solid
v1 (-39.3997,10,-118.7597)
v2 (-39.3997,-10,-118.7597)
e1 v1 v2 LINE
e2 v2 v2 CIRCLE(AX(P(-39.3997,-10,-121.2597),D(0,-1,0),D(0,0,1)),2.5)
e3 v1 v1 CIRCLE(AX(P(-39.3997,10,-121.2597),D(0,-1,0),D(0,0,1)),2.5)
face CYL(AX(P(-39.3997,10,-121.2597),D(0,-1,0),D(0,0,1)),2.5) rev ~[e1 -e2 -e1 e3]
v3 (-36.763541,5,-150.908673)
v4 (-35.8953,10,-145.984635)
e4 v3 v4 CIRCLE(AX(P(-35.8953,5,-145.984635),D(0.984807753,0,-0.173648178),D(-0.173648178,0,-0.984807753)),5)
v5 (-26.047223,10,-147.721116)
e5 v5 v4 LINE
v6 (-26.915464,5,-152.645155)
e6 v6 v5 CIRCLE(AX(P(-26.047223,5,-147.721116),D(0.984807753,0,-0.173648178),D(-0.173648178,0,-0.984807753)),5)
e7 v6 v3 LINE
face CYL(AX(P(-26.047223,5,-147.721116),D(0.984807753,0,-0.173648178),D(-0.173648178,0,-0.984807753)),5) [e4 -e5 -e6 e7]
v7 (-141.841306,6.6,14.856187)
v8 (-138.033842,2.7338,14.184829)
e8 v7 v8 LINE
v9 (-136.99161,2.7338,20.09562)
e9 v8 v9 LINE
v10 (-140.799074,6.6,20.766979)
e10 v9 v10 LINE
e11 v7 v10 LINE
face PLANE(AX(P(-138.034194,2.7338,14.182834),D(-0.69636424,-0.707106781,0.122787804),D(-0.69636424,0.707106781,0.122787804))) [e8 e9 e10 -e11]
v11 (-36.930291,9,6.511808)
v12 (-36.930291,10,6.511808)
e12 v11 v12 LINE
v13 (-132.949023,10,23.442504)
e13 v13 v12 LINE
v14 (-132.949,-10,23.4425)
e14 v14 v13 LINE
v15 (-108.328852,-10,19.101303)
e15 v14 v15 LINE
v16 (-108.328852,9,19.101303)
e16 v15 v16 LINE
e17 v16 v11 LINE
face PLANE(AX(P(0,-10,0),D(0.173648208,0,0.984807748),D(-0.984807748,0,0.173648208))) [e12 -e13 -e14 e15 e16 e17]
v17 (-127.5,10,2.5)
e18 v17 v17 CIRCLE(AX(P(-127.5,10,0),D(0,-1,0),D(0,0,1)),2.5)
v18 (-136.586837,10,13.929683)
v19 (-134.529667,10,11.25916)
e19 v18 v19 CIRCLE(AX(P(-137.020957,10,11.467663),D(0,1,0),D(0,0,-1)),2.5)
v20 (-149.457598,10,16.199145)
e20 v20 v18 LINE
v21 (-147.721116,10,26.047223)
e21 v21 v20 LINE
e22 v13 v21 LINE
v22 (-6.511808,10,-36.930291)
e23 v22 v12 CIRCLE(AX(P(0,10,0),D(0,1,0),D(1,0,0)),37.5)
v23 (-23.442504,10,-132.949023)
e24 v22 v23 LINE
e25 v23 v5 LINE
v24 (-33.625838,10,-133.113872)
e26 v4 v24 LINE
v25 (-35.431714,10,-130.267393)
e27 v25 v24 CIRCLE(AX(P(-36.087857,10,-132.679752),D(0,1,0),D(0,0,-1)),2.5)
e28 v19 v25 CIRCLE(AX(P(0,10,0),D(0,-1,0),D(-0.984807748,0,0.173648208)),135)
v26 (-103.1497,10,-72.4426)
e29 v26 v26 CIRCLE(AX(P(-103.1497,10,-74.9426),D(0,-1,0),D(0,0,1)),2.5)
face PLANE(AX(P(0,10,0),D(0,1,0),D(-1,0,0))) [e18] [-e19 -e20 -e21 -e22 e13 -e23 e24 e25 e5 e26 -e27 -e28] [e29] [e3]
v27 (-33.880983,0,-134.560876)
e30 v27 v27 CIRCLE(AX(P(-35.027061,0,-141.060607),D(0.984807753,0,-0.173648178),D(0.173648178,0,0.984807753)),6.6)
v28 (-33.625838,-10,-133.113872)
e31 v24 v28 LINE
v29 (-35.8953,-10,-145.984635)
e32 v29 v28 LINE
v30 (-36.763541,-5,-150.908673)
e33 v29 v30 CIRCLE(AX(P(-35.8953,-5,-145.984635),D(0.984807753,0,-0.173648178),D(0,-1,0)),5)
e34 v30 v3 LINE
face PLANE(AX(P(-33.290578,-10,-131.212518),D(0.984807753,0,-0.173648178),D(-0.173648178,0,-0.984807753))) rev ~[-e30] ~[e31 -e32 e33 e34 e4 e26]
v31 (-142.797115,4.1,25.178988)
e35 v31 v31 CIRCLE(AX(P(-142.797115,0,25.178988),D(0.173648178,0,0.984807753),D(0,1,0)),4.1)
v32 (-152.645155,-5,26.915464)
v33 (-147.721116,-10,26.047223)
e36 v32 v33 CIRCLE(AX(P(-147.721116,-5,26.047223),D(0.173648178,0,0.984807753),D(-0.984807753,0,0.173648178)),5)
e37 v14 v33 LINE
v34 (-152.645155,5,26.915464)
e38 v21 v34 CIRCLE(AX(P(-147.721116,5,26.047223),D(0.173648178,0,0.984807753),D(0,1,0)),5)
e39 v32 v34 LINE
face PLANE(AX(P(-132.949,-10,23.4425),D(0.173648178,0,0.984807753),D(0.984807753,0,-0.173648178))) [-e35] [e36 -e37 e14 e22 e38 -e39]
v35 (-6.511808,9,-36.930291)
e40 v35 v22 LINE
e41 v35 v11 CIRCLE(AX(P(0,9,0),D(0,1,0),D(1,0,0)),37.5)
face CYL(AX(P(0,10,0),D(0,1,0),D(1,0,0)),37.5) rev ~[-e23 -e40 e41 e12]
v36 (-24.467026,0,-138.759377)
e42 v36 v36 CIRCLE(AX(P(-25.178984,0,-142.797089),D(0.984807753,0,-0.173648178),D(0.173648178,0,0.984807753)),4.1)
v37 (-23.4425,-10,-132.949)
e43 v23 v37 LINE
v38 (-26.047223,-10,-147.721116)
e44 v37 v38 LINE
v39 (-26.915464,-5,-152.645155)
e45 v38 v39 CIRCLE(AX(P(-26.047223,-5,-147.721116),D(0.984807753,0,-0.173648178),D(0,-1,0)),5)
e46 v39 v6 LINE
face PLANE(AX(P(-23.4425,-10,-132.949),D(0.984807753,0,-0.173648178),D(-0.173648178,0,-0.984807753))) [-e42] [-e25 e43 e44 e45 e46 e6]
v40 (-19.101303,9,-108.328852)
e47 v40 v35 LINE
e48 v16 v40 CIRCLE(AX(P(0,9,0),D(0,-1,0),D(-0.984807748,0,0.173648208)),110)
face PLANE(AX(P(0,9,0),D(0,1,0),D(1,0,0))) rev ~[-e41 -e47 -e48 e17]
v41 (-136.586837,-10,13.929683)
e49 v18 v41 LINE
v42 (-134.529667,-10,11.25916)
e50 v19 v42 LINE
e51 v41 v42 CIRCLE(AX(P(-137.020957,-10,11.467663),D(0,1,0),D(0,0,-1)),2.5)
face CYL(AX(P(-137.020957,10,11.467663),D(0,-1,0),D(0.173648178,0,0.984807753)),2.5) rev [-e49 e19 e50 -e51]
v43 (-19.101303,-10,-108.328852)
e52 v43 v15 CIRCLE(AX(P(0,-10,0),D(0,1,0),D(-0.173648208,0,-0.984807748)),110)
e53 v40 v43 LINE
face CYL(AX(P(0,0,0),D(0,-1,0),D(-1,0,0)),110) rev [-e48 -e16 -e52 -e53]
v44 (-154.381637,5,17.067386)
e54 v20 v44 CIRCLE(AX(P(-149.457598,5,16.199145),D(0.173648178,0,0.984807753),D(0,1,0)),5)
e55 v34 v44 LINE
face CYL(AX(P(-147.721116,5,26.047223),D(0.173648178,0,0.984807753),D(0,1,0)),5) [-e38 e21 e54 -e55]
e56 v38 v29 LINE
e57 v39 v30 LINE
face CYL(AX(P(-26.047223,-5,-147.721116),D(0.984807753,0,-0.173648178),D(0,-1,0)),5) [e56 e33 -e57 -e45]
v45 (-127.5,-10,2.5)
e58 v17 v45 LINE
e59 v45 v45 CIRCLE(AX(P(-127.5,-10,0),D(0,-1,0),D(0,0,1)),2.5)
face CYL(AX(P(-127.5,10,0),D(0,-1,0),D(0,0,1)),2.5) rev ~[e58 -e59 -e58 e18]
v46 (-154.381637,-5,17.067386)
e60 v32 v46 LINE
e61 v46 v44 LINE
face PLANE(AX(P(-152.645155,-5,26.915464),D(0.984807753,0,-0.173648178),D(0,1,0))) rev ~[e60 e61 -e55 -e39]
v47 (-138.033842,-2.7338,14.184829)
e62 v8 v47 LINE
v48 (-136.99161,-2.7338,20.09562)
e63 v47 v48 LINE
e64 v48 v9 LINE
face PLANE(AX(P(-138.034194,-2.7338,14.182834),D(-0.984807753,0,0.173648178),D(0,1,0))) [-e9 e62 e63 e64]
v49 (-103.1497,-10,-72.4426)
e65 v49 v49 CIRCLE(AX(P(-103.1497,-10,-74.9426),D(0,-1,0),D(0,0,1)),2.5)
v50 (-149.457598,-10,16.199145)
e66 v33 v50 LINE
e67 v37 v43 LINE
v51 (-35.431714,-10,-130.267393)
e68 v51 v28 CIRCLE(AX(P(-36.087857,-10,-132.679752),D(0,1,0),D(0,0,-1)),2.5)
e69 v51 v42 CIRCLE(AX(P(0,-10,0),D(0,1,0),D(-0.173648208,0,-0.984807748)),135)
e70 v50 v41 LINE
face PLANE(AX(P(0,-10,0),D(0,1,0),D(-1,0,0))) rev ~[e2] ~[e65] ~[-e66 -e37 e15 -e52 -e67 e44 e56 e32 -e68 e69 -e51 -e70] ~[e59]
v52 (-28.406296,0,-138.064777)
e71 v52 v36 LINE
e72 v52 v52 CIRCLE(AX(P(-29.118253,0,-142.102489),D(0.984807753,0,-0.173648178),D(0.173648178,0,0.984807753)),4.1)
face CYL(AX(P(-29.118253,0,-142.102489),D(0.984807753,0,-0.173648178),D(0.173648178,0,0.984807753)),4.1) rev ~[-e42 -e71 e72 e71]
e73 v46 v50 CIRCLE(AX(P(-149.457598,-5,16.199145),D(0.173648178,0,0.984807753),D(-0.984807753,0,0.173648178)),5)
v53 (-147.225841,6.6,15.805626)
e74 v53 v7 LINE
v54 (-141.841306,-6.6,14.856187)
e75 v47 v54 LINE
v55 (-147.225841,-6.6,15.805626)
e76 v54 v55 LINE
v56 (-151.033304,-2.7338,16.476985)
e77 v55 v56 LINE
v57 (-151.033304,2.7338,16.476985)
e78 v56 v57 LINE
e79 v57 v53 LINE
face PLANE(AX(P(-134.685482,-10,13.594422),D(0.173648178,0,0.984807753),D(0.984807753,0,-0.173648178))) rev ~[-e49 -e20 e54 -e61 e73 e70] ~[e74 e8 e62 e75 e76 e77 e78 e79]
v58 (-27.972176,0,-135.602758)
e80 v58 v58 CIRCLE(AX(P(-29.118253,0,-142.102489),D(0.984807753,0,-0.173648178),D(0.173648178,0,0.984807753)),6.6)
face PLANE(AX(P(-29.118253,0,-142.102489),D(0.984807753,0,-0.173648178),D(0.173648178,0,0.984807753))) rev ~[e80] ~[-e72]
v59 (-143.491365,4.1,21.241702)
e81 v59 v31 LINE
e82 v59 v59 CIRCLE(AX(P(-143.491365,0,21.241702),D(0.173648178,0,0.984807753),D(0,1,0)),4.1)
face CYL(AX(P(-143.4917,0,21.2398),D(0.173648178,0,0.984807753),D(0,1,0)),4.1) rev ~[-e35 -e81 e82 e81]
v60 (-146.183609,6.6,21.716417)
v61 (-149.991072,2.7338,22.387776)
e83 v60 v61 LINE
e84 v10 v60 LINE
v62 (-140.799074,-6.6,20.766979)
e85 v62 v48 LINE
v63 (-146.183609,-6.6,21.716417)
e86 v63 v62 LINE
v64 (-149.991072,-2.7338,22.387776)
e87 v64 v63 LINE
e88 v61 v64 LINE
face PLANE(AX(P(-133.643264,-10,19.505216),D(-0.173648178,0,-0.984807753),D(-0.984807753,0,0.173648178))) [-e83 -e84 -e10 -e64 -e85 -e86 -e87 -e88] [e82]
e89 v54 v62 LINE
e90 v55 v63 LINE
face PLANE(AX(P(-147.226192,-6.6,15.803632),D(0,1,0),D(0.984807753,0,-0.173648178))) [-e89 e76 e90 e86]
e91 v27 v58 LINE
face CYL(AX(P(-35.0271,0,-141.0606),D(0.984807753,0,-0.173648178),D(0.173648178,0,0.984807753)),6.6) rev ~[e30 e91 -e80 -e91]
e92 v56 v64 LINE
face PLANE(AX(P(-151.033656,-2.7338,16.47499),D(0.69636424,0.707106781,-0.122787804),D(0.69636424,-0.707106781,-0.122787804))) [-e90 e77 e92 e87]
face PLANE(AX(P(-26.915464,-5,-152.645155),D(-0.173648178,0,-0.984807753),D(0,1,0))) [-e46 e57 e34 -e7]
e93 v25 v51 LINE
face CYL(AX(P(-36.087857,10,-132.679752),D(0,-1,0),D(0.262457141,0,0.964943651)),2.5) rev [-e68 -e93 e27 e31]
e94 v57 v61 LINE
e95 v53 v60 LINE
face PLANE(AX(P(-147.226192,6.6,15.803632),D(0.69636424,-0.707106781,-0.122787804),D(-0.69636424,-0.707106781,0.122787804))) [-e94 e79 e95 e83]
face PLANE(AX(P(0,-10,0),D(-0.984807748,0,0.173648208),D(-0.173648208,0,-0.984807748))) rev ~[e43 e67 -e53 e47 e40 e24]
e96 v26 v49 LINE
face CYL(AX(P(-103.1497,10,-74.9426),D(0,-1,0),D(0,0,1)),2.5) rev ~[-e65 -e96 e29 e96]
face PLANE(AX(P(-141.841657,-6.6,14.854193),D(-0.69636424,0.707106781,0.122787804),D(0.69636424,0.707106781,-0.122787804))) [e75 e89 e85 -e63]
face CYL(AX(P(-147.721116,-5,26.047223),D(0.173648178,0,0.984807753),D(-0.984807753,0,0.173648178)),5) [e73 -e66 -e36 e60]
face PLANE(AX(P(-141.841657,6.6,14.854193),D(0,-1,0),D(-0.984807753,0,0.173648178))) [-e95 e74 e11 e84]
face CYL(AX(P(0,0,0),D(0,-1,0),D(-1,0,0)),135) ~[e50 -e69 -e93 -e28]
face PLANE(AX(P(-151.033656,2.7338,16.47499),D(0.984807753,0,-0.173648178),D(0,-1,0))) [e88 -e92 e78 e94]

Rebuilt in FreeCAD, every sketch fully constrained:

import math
import FreeCAD as App
import Part
import Sketcher

V = App.Vector
Q = App.Units.Quantity


def edges_at(feature, points):
    """Names of the edges that pass closest to the given points."""
    edges = feature.Shape.Edges
    near = lambda p: min(range(len(edges)), key=lambda i: edges[i].distToShape(Part.Vertex(*p))[0])
    return sorted({f"Edge{near(p) + 1}" for p in points})

doc = App.newDocument("Part")
body = doc.addObject("PartDesign::Body", "Body")

# Sketch on XZ plane
sketch1 = doc.addObject("Sketcher::SketchObject", "Sketch")
body.addObject(sketch1)
sketch1.AttachmentSupport = (doc.XZ_Plane, [""])
sketch1.MapMode = "FlatFace"
sketch1.addGeometry([
    Part.Circle(V(0, 0, 0), V(0, 0, 1), 135),
    Part.Circle(V(0, 0, 0), V(0, 0, 1), 110),
], False)
sketch1.addConstraint([
    Sketcher.Constraint("Coincident", 0, 3, -1, 1),
    Sketcher.Constraint("Coincident", 1, 3, -1, 1),
    Sketcher.Constraint("Diameter", 0, 270.0),
    Sketcher.Constraint("Diameter", 1, 220.0),
])
pad1 = doc.addObject("PartDesign::Pad", "Pad")
body.addObject(pad1)
pad1.Profile = sketch1
pad1.Length = 20
pad1.Midplane = True

# Sketch on XZ plane
sketch2 = doc.addObject("Sketcher::SketchObject", "Sketch001")
body.addObject(sketch2)
sketch2.AttachmentSupport = (doc.XZ_Plane, [""])
sketch2.MapMode = "FlatFace"
sketch2.AttachmentOffset = App.Placement(V(0, 0, -10), App.Rotation())
sketch2.addGeometry([
    Part.Circle(V(0, 0, 0), V(0, 0, 1), 135),
    Part.Circle(V(0, 0, 0), V(0, 0, 1), 37.5),
], False)
sketch2.addConstraint([
    Sketcher.Constraint("Coincident", 0, 3, -1, 1),
    Sketcher.Constraint("Coincident", 1, 3, -1, 1),
    Sketcher.Constraint("Diameter", 0, 270.0),
    Sketcher.Constraint("Diameter", 1, 75.0),
])
pad2 = doc.addObject("PartDesign::Pad", "Pad001")
body.addObject(pad2)
pad2.Profile = sketch2
pad2.Length = 1

# Sketch on XZ plane
sketch3 = doc.addObject("Sketcher::SketchObject", "Sketch002")
body.addObject(sketch3)
sketch3.AttachmentSupport = (doc.XZ_Plane, [""])
sketch3.MapMode = "FlatFace"
sketch3.AttachmentOffset = App.Placement(V(0, 0, -10), App.Rotation())
sketch3.addGeometry([
    Part.Circle(V(127.5, 0, 0), V(0, 0, 1), 2.5),  # 0
    Part.Circle(V(103.1497, 74.9426, 0), V(0, 0, 1), 2.5),  # 1
    Part.Circle(V(39.3997, 121.2597, 0), V(0, 0, 1), 2.5),  # 2
    Part.Circle(V(-39.3997, 121.2597, 0), V(0, 0, 1), 2.5),  # 3
    Part.Circle(V(-103.1497, 74.9426, 0), V(0, 0, 1), 2.5),  # 4
    Part.Circle(V(-127.5, 0, 0), V(0, 0, 1), 2.5),  # 5
    Part.Circle(V(-103.1497, -74.9426, 0), V(0, 0, 1), 2.5),  # 6
    Part.Circle(V(-39.3997, -121.2597, 0), V(0, 0, 1), 2.5),  # 7
    Part.Circle(V(39.3997, -121.2597, 0), V(0, 0, 1), 2.5),  # 8
    Part.Circle(V(103.1497, -74.9426, 0), V(0, 0, 1), 2.5),  # 9
], False)
sketch3.addConstraint([
    Sketcher.Constraint("Equal", 0, 1),
    Sketcher.Constraint("Equal", 1, 2),
    Sketcher.Constraint("Equal", 2, 3),
    Sketcher.Constraint("Equal", 3, 4),
    Sketcher.Constraint("Equal", 4, 5),
    Sketcher.Constraint("Equal", 5, 6),
    Sketcher.Constraint("Equal", 6, 7),
    Sketcher.Constraint("Equal", 7, 8),
    Sketcher.Constraint("Equal", 8, 9),
    Sketcher.Constraint("Symmetric", 0, 3, 5, 3, -1, 1),
    Sketcher.Constraint("Symmetric", 1, 3, 6, 3, -1, 1),
    Sketcher.Constraint("Symmetric", 2, 3, 7, 3, -1, 1),
    Sketcher.Constraint("Symmetric", 3, 3, 8, 3, -1, 1),
    Sketcher.Constraint("Symmetric", 4, 3, 9, 3, -1, 1),
    Sketcher.Constraint("Symmetric", 2, 3, 3, 3, -2),
    Sketcher.Constraint("Symmetric", 1, 3, 4, 3, -2),
    Sketcher.Constraint("PointOnObject", 0, 3, -1),
    Sketcher.Constraint("Diameter", 0, 5.0),
    Sketcher.Constraint("DistanceX", 5, 3, 0, 3, 255.0),
    Sketcher.Constraint("DistanceX", 2, 3, 1, 3, 63.75),
    Sketcher.Constraint("DistanceY", 1, 3, 2, 3, 46.317),
    Sketcher.Constraint("DistanceX", -1, 1, 1, 3, 103.1497),
    Sketcher.Constraint("DistanceY", -1, 1, 1, 3, 74.9426),
])
doc.recompute()
hole = doc.addObject("PartDesign::Hole", "Hole")
body.addObject(hole)
hole.Profile = sketch3
hole.ThreadType = "None"
hole.Diameter = 5
hole.DepthType = "ThroughAll"
hole.Reversed = True

# Sketch on XZ plane
sketch4 = doc.addObject("Sketcher::SketchObject", "Sketch003")
body.addObject(sketch4)
sketch4.AttachmentSupport = (doc.XZ_Plane, [""])
sketch4.MapMode = "FlatFace"
sketch4.AttachmentOffset = App.Placement(V(0, 0, 10), App.Rotation())
sketch4.addGeometry([
    Part.LineSegment(V(-132.949, 23.4425, 0), V(0, 0, 0)),
    Part.LineSegment(V(0, 0, 0), V(-23.4425, -132.949, 0)),
    Part.ArcOfCircle(Part.Circle(V(0, 0, 0), V(0, 0, 1), 135), math.radians(-100.000002), math.radians(169.999998)),
], False)
sketch4.addConstraint([
    Sketcher.Constraint("Coincident", 0, 2, 1, 1),
    Sketcher.Constraint("Coincident", 1, 2, 2, 1),
    Sketcher.Constraint("Coincident", 2, 2, 0, 1),
    Sketcher.Constraint("Coincident", 2, 3, -1, 1),
    Sketcher.Constraint("Coincident", 0, 2, -1, 1),
    Sketcher.Constraint("Perpendicular", 0, 1),
    Sketcher.Constraint("Radius", 2, 135.0),
    Sketcher.Constraint("Angle", 0, Q("-10 deg")),
])
pocket1 = doc.addObject("PartDesign::Pocket", "Pocket")
body.addObject(pocket1)
pocket1.Profile = sketch4
pocket1.Type = "ThroughAll"

# Sketch on an angled plane
sketch5 = doc.addObject("Sketcher::SketchObject", "Sketch004")
body.addObject(sketch5)
sketch5.Placement = App.Placement(V(-23.4425, -10, -132.949), App.Rotation(V(-0.173648178, 0, -0.984807753), V(0, 1, 0), V(0.984807753, 0, -0.173648178), "ZXY"))
sketch5.addGeometry([
    Part.LineSegment(V(15, 20, 0), V(-2.5, 20, 0)),  # 0
    Part.LineSegment(V(-2.5, 20, 0), V(-2.5, 0, 0)),  # 1
    Part.LineSegment(V(-2.5, 0, 0), V(15, 0, 0)),  # 2
    Part.ArcOfCircle(Part.Circle(V(15, 5, 0), V(0, 0, 1), 5), math.radians(-90), math.radians(0)),  # 3
    Part.LineSegment(V(20, 5, 0), V(20, 15, 0)),  # 4
    Part.ArcOfCircle(Part.Circle(V(15, 15, 0), V(0, 0, 1), 5), math.radians(0), math.radians(90)),  # 5
], False)
sketch5.addConstraint([
    Sketcher.Constraint("Coincident", 0, 2, 1, 1),
    Sketcher.Constraint("Coincident", 1, 2, 2, 1),
    Sketcher.Constraint("Tangent", 2, 2, 3, 1),
    Sketcher.Constraint("Tangent", 3, 2, 4, 1),
    Sketcher.Constraint("Tangent", 4, 2, 5, 1),
    Sketcher.Constraint("Tangent", 5, 2, 0, 1),
    Sketcher.Constraint("Horizontal", 0),
    Sketcher.Constraint("Vertical", 1),
    Sketcher.Constraint("Horizontal", 2),
    Sketcher.Constraint("Vertical", 4),
    Sketcher.Constraint("Equal", 3, 5),
    Sketcher.Constraint("PointOnObject", 1, 2, -1),
    Sketcher.Constraint("Radius", 3, 5.0),
    Sketcher.Constraint("DistanceY", 1, 2, 1, 1, 20.0),
    Sketcher.Constraint("DistanceX", -1, 1, 3, 2, 20.0),
    Sketcher.Constraint("DistanceX", 1, 2, 3, 2, 22.5),
])
pad3 = doc.addObject("PartDesign::Pad", "Pad002")
body.addObject(pad3)
pad3.Profile = sketch5
pad3.Length = 10
pad3.Reversed = True
doc.recompute()

fillet = doc.addObject("PartDesign::Fillet", "Fillet")
body.addObject(fillet)
fillet.Base = (pad3, edges_at(pad3, [(-33.226, 0, -130.847)]))
fillet.Radius = 2.5

# Sketch on an angled plane
sketch6 = doc.addObject("Sketcher::SketchObject", "Sketch005")
body.addObject(sketch6)
sketch6.Placement = App.Placement(V(-132.949, -10, 23.4425), App.Rotation(V(0.984807753, 0, -0.173648178), V(0, 1, 0), V(0.173648178, 0, 0.984807753), "ZXY"))
sketch6.addGeometry([
    Part.LineSegment(V(2.5, 0, 0), V(2.5, 20, 0)),  # 0
    Part.LineSegment(V(2.5, 20, 0), V(-15, 20, 0)),  # 1
    Part.ArcOfCircle(Part.Circle(V(-15, 15, 0), V(0, 0, 1), 5), math.radians(90), math.radians(180)),  # 2
    Part.LineSegment(V(-20, 15, 0), V(-20, 5, 0)),  # 3
    Part.ArcOfCircle(Part.Circle(V(-15, 5, 0), V(0, 0, 1), 5), math.radians(180), math.radians(270)),  # 4
    Part.LineSegment(V(-15, 0, 0), V(2.5, 0, 0)),  # 5
], False)
sketch6.addConstraint([
    Sketcher.Constraint("Coincident", 0, 2, 1, 1),
    Sketcher.Constraint("Tangent", 1, 2, 2, 1),
    Sketcher.Constraint("Tangent", 2, 2, 3, 1),
    Sketcher.Constraint("Tangent", 3, 2, 4, 1),
    Sketcher.Constraint("Tangent", 4, 2, 5, 1),
    Sketcher.Constraint("Coincident", 5, 2, 0, 1),
    Sketcher.Constraint("Vertical", 0),
    Sketcher.Constraint("Horizontal", 1),
    Sketcher.Constraint("Vertical", 3),
    Sketcher.Constraint("Horizontal", 5),
    Sketcher.Constraint("Equal", 2, 4),
    Sketcher.Constraint("PointOnObject", 4, 2, -1),
    Sketcher.Constraint("Radius", 2, 5.0),
    Sketcher.Constraint("DistanceY", 0, 1, 0, 2, 20.0),
    Sketcher.Constraint("DistanceX", 2, 2, -1, 1, 20.0),
    Sketcher.Constraint("DistanceX", 2, 2, 0, 2, 22.5),
])
pad4 = doc.addObject("PartDesign::Pad", "Pad003")
body.addObject(pad4)
pad4.Profile = sketch6
pad4.Length = 10
pad4.Reversed = True
doc.recompute()

fillet2 = doc.addObject("PartDesign::Fillet", "Fillet001")
body.addObject(fillet2)
fillet2.Base = (pad4, edges_at(pad4, [(-134.32, 0, 13.53)]))
fillet2.Radius = 2.5

# Sketch on an angled plane
sketch7 = doc.addObject("Sketcher::SketchObject", "Sketch006")
body.addObject(sketch7)
sketch7.Placement = App.Placement(V(-9.84812, 0, 1.736489), App.Rotation(V(0.173648178, 0, 0.984807753), V(0, 1, 0), V(-0.984807753, 0, 0.173648178), "ZXY"))
sketch7.addGeometry(Part.Circle(V(-144.999965, 0, 0), V(0, 0, 1), 4.1), False)
sketch7.addConstraint([
    Sketcher.Constraint("PointOnObject", 0, 3, -1),
    Sketcher.Constraint("Diameter", 0, 8.2),
    Sketcher.Constraint("DistanceX", 0, 3, -1, 1, 145.0),
])
doc.recompute()
hole2 = doc.addObject("PartDesign::Hole", "Hole001")
body.addObject(hole2)
hole2.Profile = sketch7
hole2.ThreadType = "None"
hole2.Diameter = 8.2
hole2.DepthType = "ThroughAll"
hole2.HoleCutType = "Counterbore"
hole2.HoleCutDiameter = 13.2
hole2.HoleCutDepth = 6

# Sketch on an angled plane
sketch8 = doc.addObject("Sketcher::SketchObject", "Sketch007")
body.addObject(sketch8)
sketch8.Placement = App.Placement(V(-134.6855, -10, 13.5944), App.Rotation(V(-0.984807753, 0, 0.173648178), V(0, 1, 0), V(-0.173648178, 0, -0.984807753), "ZXY"))
sketch8.addGeometry([
    Part.LineSegment(V(7.2662, 3.4, 0), V(12.7338, 3.4, 0)),  # 0
    Part.LineSegment(V(12.7338, 3.4, 0), V(16.6, 7.2662, 0)),  # 1
    Part.LineSegment(V(16.6, 7.2662, 0), V(16.6, 12.7338, 0)),  # 2
    Part.LineSegment(V(16.6, 12.7338, 0), V(12.7338, 16.6, 0)),  # 3
    Part.LineSegment(V(12.7338, 16.6, 0), V(7.2662, 16.6, 0)),  # 4
    Part.LineSegment(V(7.2662, 16.6, 0), V(3.4, 12.7338, 0)),  # 5
    Part.LineSegment(V(3.4, 12.7338, 0), V(3.4, 7.2662, 0)),  # 6
    Part.LineSegment(V(3.4, 7.2662, 0), V(7.2662, 3.4, 0)),  # 7
], False)
sketch8.addConstraint([
    Sketcher.Constraint("Coincident", 0, 2, 1, 1),
    Sketcher.Constraint("Coincident", 1, 2, 2, 1),
    Sketcher.Constraint("Coincident", 2, 2, 3, 1),
    Sketcher.Constraint("Coincident", 3, 2, 4, 1),
    Sketcher.Constraint("Coincident", 4, 2, 5, 1),
    Sketcher.Constraint("Coincident", 5, 2, 6, 1),
    Sketcher.Constraint("Coincident", 6, 2, 7, 1),
    Sketcher.Constraint("Coincident", 7, 2, 0, 1),
    Sketcher.Constraint("Horizontal", 0),
    Sketcher.Constraint("Vertical", 2),
    Sketcher.Constraint("Horizontal", 4),
    Sketcher.Constraint("Vertical", 6),
    Sketcher.Constraint("Perpendicular", 1, 3),
    Sketcher.Constraint("Perpendicular", 3, 5),
    Sketcher.Constraint("Perpendicular", 5, 7),
    Sketcher.Constraint("Horizontal", 2, 2, 5, 2),
    Sketcher.Constraint("Horizontal", 1, 2, 6, 2),
    Sketcher.Constraint("Vertical", 0, 2, 3, 2),
    Sketcher.Constraint("Vertical", 4, 2, 7, 2),
    Sketcher.Constraint("Equal", 4, 2),
    Sketcher.Constraint("DistanceY", 0, 2, 3, 2, 13.2),
    Sketcher.Constraint("DistanceY", -1, 1, 0, 2, 3.4),
    Sketcher.Constraint("DistanceX", -1, 1, 1, 2, 16.6),
    Sketcher.Constraint("DistanceX", 0, 1, 0, 2, 5.4676),
])
pocket2 = doc.addObject("PartDesign::Pocket", "Pocket001")
body.addObject(pocket2)
pocket2.Profile = sketch8
pocket2.Length = 6

# Sketch on an angled plane
sketch9 = doc.addObject("Sketcher::SketchObject", "Sketch008")
body.addObject(sketch9)
sketch9.Placement = App.Placement(V(-0.694584, 0, -3.939184), App.Rotation(V(-0.984807753, 0, 0.173648178), V(0, 1, 0), V(-0.173648178, 0, -0.984807753), "ZXY"))
sketch9.addGeometry(Part.Circle(V(144.999991, 0, 0), V(0, 0, 1), 4.1), False)
sketch9.addConstraint([
    Sketcher.Constraint("PointOnObject", 0, 3, -1),
    Sketcher.Constraint("Diameter", 0, 8.2),
    Sketcher.Constraint("DistanceX", -1, 1, 0, 3, 145.0),
])
doc.recompute()
hole3 = doc.addObject("PartDesign::Hole", "Hole002")
body.addObject(hole3)
hole3.Profile = sketch9
hole3.ThreadType = "None"
hole3.Diameter = 8.2
hole3.DepthType = "ThroughAll"

doc.recompute()
